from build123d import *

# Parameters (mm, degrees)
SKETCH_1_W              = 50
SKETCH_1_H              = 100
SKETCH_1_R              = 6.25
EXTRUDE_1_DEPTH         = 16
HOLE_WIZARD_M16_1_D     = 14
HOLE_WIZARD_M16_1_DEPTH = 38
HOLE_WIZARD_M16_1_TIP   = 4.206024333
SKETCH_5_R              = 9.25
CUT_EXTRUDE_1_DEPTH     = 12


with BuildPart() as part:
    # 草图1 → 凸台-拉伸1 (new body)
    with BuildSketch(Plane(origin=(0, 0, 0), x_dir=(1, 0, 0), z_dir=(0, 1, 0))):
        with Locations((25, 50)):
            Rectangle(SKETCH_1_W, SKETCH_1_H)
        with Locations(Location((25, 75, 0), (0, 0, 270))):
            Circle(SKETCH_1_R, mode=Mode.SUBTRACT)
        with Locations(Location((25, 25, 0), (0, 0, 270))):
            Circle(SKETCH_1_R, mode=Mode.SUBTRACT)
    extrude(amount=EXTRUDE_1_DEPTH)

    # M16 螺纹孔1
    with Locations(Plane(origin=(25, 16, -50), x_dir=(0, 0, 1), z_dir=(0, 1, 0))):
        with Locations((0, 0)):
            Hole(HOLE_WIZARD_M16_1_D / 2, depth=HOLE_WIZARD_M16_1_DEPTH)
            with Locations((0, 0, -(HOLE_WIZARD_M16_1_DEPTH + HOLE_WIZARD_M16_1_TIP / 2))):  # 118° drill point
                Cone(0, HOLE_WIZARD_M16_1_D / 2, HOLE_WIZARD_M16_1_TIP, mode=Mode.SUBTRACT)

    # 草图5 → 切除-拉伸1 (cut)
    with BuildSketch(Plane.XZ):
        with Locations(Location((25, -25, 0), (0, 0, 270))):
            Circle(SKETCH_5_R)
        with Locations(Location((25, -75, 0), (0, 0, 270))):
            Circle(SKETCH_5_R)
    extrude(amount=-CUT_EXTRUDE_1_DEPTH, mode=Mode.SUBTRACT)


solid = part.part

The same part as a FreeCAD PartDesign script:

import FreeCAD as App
import Part
import Sketcher
Q = App.Units.Quantity


def add_polygon(sketch, points):
    """Adds a closed chain of lines whose ends are joined by coincident constraints."""
    first, n = sketch.GeometryCount, len(points)
    for a, b in zip(points, points[1:] + points[:1]):
        sketch.addGeometry(Part.LineSegment(App.Vector(*a, 0), App.Vector(*b, 0)), False)
    for i in range(n):
        sketch.addConstraint(Sketcher.Constraint("Coincident", first + i, 2, first + (i + 1) % n, 1))

doc = App.newDocument("Part")
params = doc.addObject("Spreadsheet::Sheet", "Params")
for row, (alias, value) in enumerate([
    ("sketch1_diameter", "12.5 mm"),
    ("sketch1_width", "50 mm"),
    ("sketch1_height", "100 mm"),
    ("pad1_length", "16 mm"),
    ("sketch2_diameter", "14 mm"),
    ("hole_diameter", "14 mm"),
    ("hole_depth", "38 mm"),
    ("sketch3_diameter", "18.5 mm"),
    ("pocket1_length", "12 mm"),
], start=1):
    params.set(f"A{row}", alias)
    params.set(f"B{row}", "=" + value)
    params.setAlias(f"B{row}", alias)

body = doc.addObject("PartDesign::Body", "Body")

sketch1 = body.newObject("Sketcher::SketchObject", "Sketch")
sketch1.AttachmentSupport = (doc.getObject("XZ_Plane"), [""])
sketch1.MapMode = "FlatFace"
add_polygon(sketch1, [(0, -100), (0, 0), (50, 0), (50, -100)])
sketch1.addGeometry(Part.Circle(App.Vector(25, -25, 0), App.Vector(0, 0, 1), 6), False)
sketch1.addGeometry(Part.Circle(App.Vector(25, -75, 0), App.Vector(0, 0, 1), 6), False)
sketch1.addConstraint([
    Sketcher.Constraint("Vertical", 0),
    Sketcher.Constraint("Horizontal", 1),
    Sketcher.Constraint("Vertical", 2),
    Sketcher.Constraint("Horizontal", 3),
    Sketcher.Constraint("Coincident", 0, 2, -1, 1),
    Sketcher.Constraint("Equal", 4, 5),
    Sketcher.Constraint("Vertical", 4, 3, 5, 3),
    Sketcher.Constraint("Diameter", 4, Q("12.5 mm")),
    Sketcher.Constraint("DistanceX", 1, 1, 1, 2, Q("50 mm")),
    Sketcher.Constraint("DistanceY", 0, 1, 0, 2, Q("100 mm")),
    Sketcher.Constraint("DistanceX", -1, 1, 4, 3, Q("25 mm")),
    Sketcher.Constraint("DistanceY", 4, 3, -1, 1, Q("25 mm")),
    Sketcher.Constraint("DistanceY", 5, 3, -1, 1, Q("75 mm")),
])
sketch1.setExpression("Constraints[11]", "Params.sketch1_diameter")
sketch1.setExpression("Constraints[12]", "Params.sketch1_width")
sketch1.setExpression("Constraints[13]", "Params.sketch1_height")
pad1 = body.newObject("PartDesign::Pad", "Pad")
pad1.Profile = sketch1
pad1.setExpression("Length", "Params.pad1_length")
pad1.Reversed = True

sketch2 = body.newObject("Sketcher::SketchObject", "Sketch001")
sketch2.AttachmentSupport = (doc.getObject("XZ_Plane"), [""])
sketch2.MapMode = "FlatFace"
sketch2.AttachmentOffset = App.Placement(App.Vector(0, 0, -16), App.Rotation())
sketch2.addGeometry(Part.Circle(App.Vector(25, -50, 0), App.Vector(0, 0, 1), 7), False)
sketch2.addConstraint([
    Sketcher.Constraint("Diameter", 0, Q("14 mm")),
    Sketcher.Constraint("DistanceX", -1, 1, 0, 3, Q("25 mm")),
    Sketcher.Constraint("DistanceY", 0, 3, -1, 1, Q("50 mm")),
])
sketch2.setExpression("Constraints[0]", "Params.sketch2_diameter")
doc.recompute()
hole = body.newObject("PartDesign::Hole", "Hole")
hole.Profile = sketch2
hole.ThreadType = "None"
hole.setExpression("Diameter", "Params.hole_diameter")
hole.DepthType = "Dimension"
hole.setExpression("Depth", "Params.hole_depth")
hole.DrillPoint = "Angled"
hole.DrillPointAngle = 118
hole.Reversed = True

sketch3 = body.newObject("Sketcher::SketchObject", "Sketch002")
sketch3.AttachmentSupport = (doc.getObject("XZ_Plane"), [""])
sketch3.MapMode = "FlatFace"
sketch3.addGeometry([
    Part.Circle(App.Vector(25, -25, 0), App.Vector(0, 0, 1), 9),
    Part.Circle(App.Vector(25, -75, 0), App.Vector(0, 0, 1), 9),
], False)
sketch3.addConstraint([
    Sketcher.Constraint("Equal", 0, 1),
    Sketcher.Constraint("Vertical", 0, 3, 1, 3),
    Sketcher.Constraint("Diameter", 0, Q("18.5 mm")),
    Sketcher.Constraint("DistanceX", -1, 1, 0, 3, Q("25 mm")),
    Sketcher.Constraint("DistanceY", 0, 3, -1, 1, Q("25 mm")),
    Sketcher.Constraint("DistanceY", 1, 3, -1, 1, Q("75 mm")),
])
sketch3.setExpression("Constraints[2]", "Params.sketch3_diameter")
pocket1 = body.newObject("PartDesign::Pocket", "Pocket")
pocket1.Profile = sketch3
pocket1.setExpression("Length", "Params.pocket1_length")

doc.recompute()
